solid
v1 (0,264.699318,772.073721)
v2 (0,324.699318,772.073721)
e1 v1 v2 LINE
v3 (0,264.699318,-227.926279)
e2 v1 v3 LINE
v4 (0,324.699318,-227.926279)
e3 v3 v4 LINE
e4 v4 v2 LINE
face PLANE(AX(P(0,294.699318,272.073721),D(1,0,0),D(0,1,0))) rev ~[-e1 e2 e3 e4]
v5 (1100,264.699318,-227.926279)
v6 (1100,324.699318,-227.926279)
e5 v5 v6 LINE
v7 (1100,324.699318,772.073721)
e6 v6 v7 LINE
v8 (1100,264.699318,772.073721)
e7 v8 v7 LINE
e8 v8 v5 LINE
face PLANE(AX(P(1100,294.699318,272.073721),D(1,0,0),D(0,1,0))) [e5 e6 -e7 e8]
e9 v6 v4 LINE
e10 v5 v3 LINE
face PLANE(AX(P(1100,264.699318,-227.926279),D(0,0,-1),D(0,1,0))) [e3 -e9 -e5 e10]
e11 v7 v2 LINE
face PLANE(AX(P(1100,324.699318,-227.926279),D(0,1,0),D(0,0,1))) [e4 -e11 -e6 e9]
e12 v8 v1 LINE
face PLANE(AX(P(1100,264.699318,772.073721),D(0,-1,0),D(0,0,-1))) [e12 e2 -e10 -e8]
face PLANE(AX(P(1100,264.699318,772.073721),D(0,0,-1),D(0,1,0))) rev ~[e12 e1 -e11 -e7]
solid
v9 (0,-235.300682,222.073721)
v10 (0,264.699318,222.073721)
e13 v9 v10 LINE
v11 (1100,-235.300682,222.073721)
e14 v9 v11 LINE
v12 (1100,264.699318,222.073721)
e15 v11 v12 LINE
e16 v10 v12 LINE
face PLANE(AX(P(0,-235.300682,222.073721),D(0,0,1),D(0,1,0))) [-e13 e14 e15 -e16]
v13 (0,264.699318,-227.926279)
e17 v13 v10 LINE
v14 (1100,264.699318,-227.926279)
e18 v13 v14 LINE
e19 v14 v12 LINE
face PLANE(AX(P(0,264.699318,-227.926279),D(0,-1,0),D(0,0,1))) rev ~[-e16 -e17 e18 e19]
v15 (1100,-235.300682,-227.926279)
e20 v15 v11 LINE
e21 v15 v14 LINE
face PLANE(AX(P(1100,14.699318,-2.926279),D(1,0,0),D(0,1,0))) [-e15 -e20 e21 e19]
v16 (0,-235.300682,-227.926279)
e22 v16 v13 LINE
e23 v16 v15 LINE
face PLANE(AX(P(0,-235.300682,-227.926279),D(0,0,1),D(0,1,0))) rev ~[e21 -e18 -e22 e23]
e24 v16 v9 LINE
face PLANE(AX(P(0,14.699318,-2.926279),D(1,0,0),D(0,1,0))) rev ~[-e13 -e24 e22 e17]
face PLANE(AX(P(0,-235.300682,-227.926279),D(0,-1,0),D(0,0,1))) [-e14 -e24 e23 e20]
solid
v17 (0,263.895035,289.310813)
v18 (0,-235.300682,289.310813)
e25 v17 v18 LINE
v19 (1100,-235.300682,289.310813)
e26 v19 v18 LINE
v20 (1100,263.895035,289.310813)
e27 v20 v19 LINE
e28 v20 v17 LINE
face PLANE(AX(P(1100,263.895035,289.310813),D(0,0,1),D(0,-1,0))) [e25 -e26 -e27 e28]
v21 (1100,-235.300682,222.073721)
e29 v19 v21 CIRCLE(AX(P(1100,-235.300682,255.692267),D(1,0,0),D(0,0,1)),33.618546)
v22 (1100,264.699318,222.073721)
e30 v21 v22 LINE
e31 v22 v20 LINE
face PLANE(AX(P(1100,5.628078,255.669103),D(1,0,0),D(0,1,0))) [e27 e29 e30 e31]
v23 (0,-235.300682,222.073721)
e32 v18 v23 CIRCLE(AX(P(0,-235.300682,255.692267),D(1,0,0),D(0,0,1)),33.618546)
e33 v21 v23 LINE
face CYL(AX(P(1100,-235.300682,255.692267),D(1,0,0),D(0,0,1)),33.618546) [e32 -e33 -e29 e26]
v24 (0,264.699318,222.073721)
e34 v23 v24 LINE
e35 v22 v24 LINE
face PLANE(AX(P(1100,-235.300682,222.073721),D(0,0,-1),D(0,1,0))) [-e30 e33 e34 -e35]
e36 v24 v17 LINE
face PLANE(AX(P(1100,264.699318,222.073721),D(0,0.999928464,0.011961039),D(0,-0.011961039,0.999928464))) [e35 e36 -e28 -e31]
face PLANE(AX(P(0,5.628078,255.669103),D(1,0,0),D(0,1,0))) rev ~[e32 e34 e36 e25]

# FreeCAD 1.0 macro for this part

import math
import FreeCAD as App
import Part
import Sketcher
Q = App.Units.Quantity


def add_polygon(sketch, points):
    """Adds a closed chain of lines whose ends are joined by coincident constraints."""
    first, n = sketch.GeometryCount, len(points)
    for a, b in zip(points, points[1:] + points[:1]):
        sketch.addGeometry(Part.LineSegment(App.Vector(*a, 0), App.Vector(*b, 0)), False)
    for i in range(n):
        sketch.addConstraint(Sketcher.Constraint("Coincident", first + i, 2, first + (i + 1) % n, 1))

doc = App.newDocument("Part")
body = doc.addObject("PartDesign::Body", "Body")

# Sketch on YZ plane
sketch1 = body.newObject("Sketcher::SketchObject", "Sketch")
sketch1.AttachmentSupport = (doc.getObject("YZ_Plane"), [""])
sketch1.MapMode = "FlatFace"
add_polygon(sketch1, [(-235, 222), (-235, -228), (265, -228), (265, 222)])  # lines 0-3
sketch1.addConstraint([
    Sketcher.Constraint("Vertical", 0),
    Sketcher.Constraint("Horizontal", 1),
    Sketcher.Constraint("Vertical", 2),
    Sketcher.Constraint("Horizontal", 3),
    Sketcher.Constraint("DistanceX", 1, 1, 1, 2, Q("500 mm")),
    Sketcher.Constraint("DistanceY", 0, 2, 0, 1, Q("450 mm")),
    Sketcher.Constraint("DistanceX", 0, 2, -1, 1, Q("235.300682 mm")),
    Sketcher.Constraint("DistanceY", 0, 2, -1, 1, Q("227.926279 mm")),
])
pad1 = body.newObject("PartDesign::Pad", "Pad")
pad1.Profile = sketch1
pad1.Length = 1100
body2 = doc.addObject("PartDesign::Body", "Body001")

# Sketch on YZ plane
sketch2 = body2.newObject("Sketcher::SketchObject", "Sketch001")
sketch2.AttachmentSupport = (doc.getObject("YZ_Plane001"), [""])
sketch2.MapMode = "FlatFace"
sketch2.AttachmentOffset = App.Placement(App.Vector(0, 0, 1100), App.Rotation())
sketch2.addGeometry([
    Part.LineSegment(App.Vector(264, 289, 0), App.Vector(-235, 289, 0)),
    Part.ArcOfCircle(Part.Circle(App.Vector(-235, 256, 0), App.Vector(0, 0, 1), 34), math.radians(90), math.radians(270)),
    Part.LineSegment(App.Vector(-235, 222, 0), App.Vector(265, 222, 0)),
    Part.LineSegment(App.Vector(265, 222, 0), App.Vector(264, 289, 0)),
], False)
sketch2.addConstraint([
    Sketcher.Constraint("Tangent", 0, 2, 1, 1),
    Sketcher.Constraint("Tangent", 1, 2, 2, 1),
    Sketcher.Constraint("Coincident", 2, 2, 3, 1),
    Sketcher.Constraint("Coincident", 3, 2, 0, 1),
    Sketcher.Constraint("Horizontal", 0),
    Sketcher.Constraint("Horizontal", 2),
    Sketcher.Constraint("DistanceX", 2, 1, 2, 2, Q("500 mm")),
    Sketcher.Constraint("Radius", 1, Q("33.618546 mm")),
    Sketcher.Constraint("DistanceX", 0, 2, 0, 1, Q("499.195717 mm")),
    Sketcher.Constraint("DistanceX", 1, 3, -1, 1, Q("235.300682 mm")),
    Sketcher.Constraint("DistanceY", -1, 1, 1, 2, Q("222.073721 mm")),
])
pad2 = body2.newObject("PartDesign::Pad", "Pad001")
pad2.Profile = sketch2
pad2.Length = 1100
pad2.Reversed = True
body3 = doc.addObject("PartDesign::Body", "Body002")

# Sketch on YZ plane
sketch3 = body3.newObject("Sketcher::SketchObject", "Sketch002")
sketch3.AttachmentSupport = (doc.getObject("YZ_Plane002"), [""])
sketch3.MapMode = "FlatFace"
sketch3.AttachmentOffset = App.Placement(App.Vector(0, 0, 1100), App.Rotation())
add_polygon(sketch3, [(265, 772), (265, -228), (325, -228), (325, 772)])  # lines 0-3
sketch3.addConstraint([
    Sketcher.Constraint("Vertical", 0),
    Sketcher.Constraint("Horizontal", 1),
    Sketcher.Constraint("Vertical", 2),
    Sketcher.Constraint("Horizontal", 3),
    Sketcher.Constraint("DistanceX", 1, 1, 1, 2, Q("60 mm")),
    Sketcher.Constraint("DistanceY", 0, 2, 0, 1, Q("1000 mm")),
    Sketcher.Constraint("DistanceX", -1, 1, 0, 2, Q("264.699318 mm")),
    Sketcher.Constraint("DistanceY", 0, 2, -1, 1, Q("227.926279 mm")),
])
pad3 = body3.newObject("PartDesign::Pad", "Pad002")
pad3.Profile = sketch3
pad3.Length = 1100
pad3.Reversed = True

doc.recompute()
